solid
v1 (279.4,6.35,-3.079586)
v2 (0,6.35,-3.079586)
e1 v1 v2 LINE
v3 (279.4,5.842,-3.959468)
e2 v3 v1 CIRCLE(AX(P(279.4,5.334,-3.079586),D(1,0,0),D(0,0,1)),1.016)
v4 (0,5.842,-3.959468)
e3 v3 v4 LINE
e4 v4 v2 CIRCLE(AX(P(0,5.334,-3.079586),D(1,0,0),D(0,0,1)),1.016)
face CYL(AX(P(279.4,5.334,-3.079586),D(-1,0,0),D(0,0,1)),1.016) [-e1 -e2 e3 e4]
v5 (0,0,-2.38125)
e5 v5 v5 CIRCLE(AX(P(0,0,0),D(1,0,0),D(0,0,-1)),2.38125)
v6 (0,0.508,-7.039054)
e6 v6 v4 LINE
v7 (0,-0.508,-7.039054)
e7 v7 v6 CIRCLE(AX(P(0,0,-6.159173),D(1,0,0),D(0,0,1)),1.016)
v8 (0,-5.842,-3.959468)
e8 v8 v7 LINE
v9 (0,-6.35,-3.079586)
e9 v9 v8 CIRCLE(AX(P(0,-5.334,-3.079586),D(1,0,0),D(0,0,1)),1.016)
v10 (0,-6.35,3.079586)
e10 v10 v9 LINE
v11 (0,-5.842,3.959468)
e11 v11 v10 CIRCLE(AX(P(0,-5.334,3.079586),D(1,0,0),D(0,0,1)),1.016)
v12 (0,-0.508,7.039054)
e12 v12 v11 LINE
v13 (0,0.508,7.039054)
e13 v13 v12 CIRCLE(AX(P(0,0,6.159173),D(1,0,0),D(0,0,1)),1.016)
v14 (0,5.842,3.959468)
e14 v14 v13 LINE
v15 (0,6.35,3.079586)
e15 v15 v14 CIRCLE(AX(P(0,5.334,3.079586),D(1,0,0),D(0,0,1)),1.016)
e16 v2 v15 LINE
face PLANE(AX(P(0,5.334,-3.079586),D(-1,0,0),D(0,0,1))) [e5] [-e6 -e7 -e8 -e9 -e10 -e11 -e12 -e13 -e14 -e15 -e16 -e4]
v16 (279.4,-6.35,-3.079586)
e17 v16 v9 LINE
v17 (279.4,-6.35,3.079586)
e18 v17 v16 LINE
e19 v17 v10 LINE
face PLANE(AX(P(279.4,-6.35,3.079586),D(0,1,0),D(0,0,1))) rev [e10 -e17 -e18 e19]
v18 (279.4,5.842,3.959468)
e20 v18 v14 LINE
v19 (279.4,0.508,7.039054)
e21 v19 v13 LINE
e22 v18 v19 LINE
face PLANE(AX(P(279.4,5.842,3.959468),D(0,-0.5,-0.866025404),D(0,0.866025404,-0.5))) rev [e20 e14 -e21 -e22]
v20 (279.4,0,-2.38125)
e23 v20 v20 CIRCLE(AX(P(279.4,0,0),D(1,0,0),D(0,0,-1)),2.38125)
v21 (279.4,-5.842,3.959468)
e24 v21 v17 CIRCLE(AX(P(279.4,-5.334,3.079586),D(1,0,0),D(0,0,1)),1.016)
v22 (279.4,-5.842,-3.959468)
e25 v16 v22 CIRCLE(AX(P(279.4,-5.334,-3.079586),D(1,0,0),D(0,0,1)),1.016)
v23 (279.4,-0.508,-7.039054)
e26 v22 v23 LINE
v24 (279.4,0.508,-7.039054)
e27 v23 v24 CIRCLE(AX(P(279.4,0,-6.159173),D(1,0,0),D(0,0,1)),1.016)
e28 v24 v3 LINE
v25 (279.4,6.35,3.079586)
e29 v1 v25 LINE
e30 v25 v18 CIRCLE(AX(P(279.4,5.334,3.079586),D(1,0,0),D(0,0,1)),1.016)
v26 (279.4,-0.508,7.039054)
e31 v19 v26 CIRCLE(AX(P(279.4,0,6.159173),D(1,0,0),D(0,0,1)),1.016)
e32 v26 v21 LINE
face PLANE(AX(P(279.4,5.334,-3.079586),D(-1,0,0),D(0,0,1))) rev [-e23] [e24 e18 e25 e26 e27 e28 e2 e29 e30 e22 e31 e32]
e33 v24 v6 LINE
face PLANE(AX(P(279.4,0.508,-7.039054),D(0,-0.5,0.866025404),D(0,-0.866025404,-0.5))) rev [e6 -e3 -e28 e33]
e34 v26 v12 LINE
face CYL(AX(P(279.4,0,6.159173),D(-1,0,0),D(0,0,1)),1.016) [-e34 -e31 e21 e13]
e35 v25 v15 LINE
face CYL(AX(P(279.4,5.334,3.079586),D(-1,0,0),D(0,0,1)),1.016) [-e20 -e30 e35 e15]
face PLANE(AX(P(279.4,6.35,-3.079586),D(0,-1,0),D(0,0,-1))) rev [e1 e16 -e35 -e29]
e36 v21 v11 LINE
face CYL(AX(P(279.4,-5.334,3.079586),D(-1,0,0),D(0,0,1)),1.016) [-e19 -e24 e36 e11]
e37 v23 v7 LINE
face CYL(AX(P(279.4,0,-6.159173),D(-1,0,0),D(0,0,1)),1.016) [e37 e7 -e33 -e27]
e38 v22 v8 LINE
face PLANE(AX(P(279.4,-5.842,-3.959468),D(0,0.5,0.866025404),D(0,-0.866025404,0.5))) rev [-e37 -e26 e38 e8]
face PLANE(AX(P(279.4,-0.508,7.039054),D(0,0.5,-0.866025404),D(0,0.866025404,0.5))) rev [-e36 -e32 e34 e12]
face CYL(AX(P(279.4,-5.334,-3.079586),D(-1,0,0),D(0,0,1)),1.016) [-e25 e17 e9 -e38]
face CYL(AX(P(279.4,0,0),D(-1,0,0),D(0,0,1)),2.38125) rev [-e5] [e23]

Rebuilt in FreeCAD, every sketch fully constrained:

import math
import FreeCAD as App
import Part
import Sketcher

V = App.Vector
Q = App.Units.Quantity

doc = App.newDocument("Part")
body = doc.addObject("PartDesign::Body", "Body")

# Sketch on YZ plane
sketch1 = body.newObject("Sketcher::SketchObject", "Sketch")
sketch1.AttachmentSupport = (doc.getObject("YZ_Plane"), [""])
sketch1.MapMode = "FlatFace"
sketch1.addGeometry(Part.LineSegment(V(0.5, -7, 0), V(5.8, -4, 0)), False)
sketch1.addGeometry(Part.ArcOfCircle(Part.Circle(V(5.3, -3.1, 0), V(0, 0, 1), 1), math.radians(-60), math.radians(0)), False)
sketch1.addGeometry(Part.LineSegment(V(6.3, -3.1, 0), V(6.3, 3.1, 0)), False)
sketch1.addGeometry(Part.ArcOfCircle(Part.Circle(V(5.3, 3.1, 0), V(0, 0, 1), 1), math.radians(0), math.radians(60)), False)
sketch1.addGeometry(Part.LineSegment(V(5.8, 4, 0), V(0.5, 7, 0)), False)
sketch1.addGeometry(Part.ArcOfCircle(Part.Circle(V(0, 6.2, 0), V(0, 0, 1), 1), math.radians(60), math.radians(120)), False)
sketch1.addGeometry(Part.LineSegment(V(-0.5, 7, 0), V(-5.8, 4, 0)), False)
sketch1.addGeometry(Part.ArcOfCircle(Part.Circle(V(-5.3, 3.1, 0), V(0, 0, 1), 1), math.radians(120), math.radians(180)), False)
sketch1.addGeometry(Part.LineSegment(V(-6.3, 3.1, 0), V(-6.3, -3.1, 0)), False)
sketch1.addGeometry(Part.ArcOfCircle(Part.Circle(V(-5.3, -3.1, 0), V(0, 0, 1), 1), math.radians(-180), math.radians(-120)), False)
sketch1.addGeometry(Part.LineSegment(V(-5.8, -4, 0), V(-0.5, -7, 0)), False)
sketch1.addGeometry(Part.ArcOfCircle(Part.Circle(V(0, -6.2, 0), V(0, 0, 1), 1), math.radians(-120), math.radians(-60)), False)
sketch1.addGeometry(Part.Circle(V(0, 0, 0), V(0, 0, 1), 2.4), False)
sketch1.addConstraint(Sketcher.Constraint("Tangent", 0, 2, 1, 1))
sketch1.addConstraint(Sketcher.Constraint("Tangent", 1, 2, 2, 1))
sketch1.addConstraint(Sketcher.Constraint("Tangent", 2, 2, 3, 1))
sketch1.addConstraint(Sketcher.Constraint("Tangent", 3, 2, 4, 1))
sketch1.addConstraint(Sketcher.Constraint("Tangent", 4, 2, 5, 1))
sketch1.addConstraint(Sketcher.Constraint("Tangent", 5, 2, 6, 1))
sketch1.addConstraint(Sketcher.Constraint("Tangent", 6, 2, 7, 1))
sketch1.addConstraint(Sketcher.Constraint("Tangent", 7, 2, 8, 1))
sketch1.addConstraint(Sketcher.Constraint("Tangent", 8, 2, 9, 1))
sketch1.addConstraint(Sketcher.Constraint("Tangent", 9, 2, 10, 1))
sketch1.addConstraint(Sketcher.Constraint("Tangent", 10, 2, 11, 1))
sketch1.addConstraint(Sketcher.Constraint("Tangent", 11, 2, 0, 1))
sketch1.addConstraint(Sketcher.Constraint("Vertical", 2))
sketch1.addConstraint(Sketcher.Constraint("Vertical", 8))
sketch1.addConstraint(Sketcher.Constraint("Coincident", 12, 3, -1, 1))
sketch1.addConstraint(Sketcher.Constraint("Equal", 1, 3))
sketch1.addConstraint(Sketcher.Constraint("Equal", 3, 5))
sketch1.addConstraint(Sketcher.Constraint("Equal", 5, 7))
sketch1.addConstraint(Sketcher.Constraint("Equal", 7, 9))
sketch1.addConstraint(Sketcher.Constraint("Equal", 9, 11))
sketch1.addConstraint(Sketcher.Constraint("Symmetric", 1, 3, 7, 3, -1, 1))
sketch1.addConstraint(Sketcher.Constraint("Symmetric", 5, 3, 11, 3, -1, 1))
sketch1.addConstraint(Sketcher.Constraint("Symmetric", 4, 2, 5, 2, -2))
sketch1.addConstraint(Sketcher.Constraint("Parallel", 4, 10))
sketch1.addConstraint(Sketcher.Constraint("Radius", 1, Q("0.04 in")))
sketch1.addConstraint(Sketcher.Constraint("Diameter", 12, Q("0.1875 in")))
sketch1.addConstraint(Sketcher.Constraint("Angle", 0, Q("30 deg")))
sketch1.addConstraint(Sketcher.Constraint("DistanceX", -1, 1, 1, 3, Q("0.21 in")))
sketch1.addConstraint(Sketcher.Constraint("DistanceY", 2, 1, 2, 2, Q("6.159173 mm")))
pad1 = body.newObject("PartDesign::Pad", "Pad")
pad1.Profile = sketch1
pad1.Length = Q("11 in")

doc.recompute()
